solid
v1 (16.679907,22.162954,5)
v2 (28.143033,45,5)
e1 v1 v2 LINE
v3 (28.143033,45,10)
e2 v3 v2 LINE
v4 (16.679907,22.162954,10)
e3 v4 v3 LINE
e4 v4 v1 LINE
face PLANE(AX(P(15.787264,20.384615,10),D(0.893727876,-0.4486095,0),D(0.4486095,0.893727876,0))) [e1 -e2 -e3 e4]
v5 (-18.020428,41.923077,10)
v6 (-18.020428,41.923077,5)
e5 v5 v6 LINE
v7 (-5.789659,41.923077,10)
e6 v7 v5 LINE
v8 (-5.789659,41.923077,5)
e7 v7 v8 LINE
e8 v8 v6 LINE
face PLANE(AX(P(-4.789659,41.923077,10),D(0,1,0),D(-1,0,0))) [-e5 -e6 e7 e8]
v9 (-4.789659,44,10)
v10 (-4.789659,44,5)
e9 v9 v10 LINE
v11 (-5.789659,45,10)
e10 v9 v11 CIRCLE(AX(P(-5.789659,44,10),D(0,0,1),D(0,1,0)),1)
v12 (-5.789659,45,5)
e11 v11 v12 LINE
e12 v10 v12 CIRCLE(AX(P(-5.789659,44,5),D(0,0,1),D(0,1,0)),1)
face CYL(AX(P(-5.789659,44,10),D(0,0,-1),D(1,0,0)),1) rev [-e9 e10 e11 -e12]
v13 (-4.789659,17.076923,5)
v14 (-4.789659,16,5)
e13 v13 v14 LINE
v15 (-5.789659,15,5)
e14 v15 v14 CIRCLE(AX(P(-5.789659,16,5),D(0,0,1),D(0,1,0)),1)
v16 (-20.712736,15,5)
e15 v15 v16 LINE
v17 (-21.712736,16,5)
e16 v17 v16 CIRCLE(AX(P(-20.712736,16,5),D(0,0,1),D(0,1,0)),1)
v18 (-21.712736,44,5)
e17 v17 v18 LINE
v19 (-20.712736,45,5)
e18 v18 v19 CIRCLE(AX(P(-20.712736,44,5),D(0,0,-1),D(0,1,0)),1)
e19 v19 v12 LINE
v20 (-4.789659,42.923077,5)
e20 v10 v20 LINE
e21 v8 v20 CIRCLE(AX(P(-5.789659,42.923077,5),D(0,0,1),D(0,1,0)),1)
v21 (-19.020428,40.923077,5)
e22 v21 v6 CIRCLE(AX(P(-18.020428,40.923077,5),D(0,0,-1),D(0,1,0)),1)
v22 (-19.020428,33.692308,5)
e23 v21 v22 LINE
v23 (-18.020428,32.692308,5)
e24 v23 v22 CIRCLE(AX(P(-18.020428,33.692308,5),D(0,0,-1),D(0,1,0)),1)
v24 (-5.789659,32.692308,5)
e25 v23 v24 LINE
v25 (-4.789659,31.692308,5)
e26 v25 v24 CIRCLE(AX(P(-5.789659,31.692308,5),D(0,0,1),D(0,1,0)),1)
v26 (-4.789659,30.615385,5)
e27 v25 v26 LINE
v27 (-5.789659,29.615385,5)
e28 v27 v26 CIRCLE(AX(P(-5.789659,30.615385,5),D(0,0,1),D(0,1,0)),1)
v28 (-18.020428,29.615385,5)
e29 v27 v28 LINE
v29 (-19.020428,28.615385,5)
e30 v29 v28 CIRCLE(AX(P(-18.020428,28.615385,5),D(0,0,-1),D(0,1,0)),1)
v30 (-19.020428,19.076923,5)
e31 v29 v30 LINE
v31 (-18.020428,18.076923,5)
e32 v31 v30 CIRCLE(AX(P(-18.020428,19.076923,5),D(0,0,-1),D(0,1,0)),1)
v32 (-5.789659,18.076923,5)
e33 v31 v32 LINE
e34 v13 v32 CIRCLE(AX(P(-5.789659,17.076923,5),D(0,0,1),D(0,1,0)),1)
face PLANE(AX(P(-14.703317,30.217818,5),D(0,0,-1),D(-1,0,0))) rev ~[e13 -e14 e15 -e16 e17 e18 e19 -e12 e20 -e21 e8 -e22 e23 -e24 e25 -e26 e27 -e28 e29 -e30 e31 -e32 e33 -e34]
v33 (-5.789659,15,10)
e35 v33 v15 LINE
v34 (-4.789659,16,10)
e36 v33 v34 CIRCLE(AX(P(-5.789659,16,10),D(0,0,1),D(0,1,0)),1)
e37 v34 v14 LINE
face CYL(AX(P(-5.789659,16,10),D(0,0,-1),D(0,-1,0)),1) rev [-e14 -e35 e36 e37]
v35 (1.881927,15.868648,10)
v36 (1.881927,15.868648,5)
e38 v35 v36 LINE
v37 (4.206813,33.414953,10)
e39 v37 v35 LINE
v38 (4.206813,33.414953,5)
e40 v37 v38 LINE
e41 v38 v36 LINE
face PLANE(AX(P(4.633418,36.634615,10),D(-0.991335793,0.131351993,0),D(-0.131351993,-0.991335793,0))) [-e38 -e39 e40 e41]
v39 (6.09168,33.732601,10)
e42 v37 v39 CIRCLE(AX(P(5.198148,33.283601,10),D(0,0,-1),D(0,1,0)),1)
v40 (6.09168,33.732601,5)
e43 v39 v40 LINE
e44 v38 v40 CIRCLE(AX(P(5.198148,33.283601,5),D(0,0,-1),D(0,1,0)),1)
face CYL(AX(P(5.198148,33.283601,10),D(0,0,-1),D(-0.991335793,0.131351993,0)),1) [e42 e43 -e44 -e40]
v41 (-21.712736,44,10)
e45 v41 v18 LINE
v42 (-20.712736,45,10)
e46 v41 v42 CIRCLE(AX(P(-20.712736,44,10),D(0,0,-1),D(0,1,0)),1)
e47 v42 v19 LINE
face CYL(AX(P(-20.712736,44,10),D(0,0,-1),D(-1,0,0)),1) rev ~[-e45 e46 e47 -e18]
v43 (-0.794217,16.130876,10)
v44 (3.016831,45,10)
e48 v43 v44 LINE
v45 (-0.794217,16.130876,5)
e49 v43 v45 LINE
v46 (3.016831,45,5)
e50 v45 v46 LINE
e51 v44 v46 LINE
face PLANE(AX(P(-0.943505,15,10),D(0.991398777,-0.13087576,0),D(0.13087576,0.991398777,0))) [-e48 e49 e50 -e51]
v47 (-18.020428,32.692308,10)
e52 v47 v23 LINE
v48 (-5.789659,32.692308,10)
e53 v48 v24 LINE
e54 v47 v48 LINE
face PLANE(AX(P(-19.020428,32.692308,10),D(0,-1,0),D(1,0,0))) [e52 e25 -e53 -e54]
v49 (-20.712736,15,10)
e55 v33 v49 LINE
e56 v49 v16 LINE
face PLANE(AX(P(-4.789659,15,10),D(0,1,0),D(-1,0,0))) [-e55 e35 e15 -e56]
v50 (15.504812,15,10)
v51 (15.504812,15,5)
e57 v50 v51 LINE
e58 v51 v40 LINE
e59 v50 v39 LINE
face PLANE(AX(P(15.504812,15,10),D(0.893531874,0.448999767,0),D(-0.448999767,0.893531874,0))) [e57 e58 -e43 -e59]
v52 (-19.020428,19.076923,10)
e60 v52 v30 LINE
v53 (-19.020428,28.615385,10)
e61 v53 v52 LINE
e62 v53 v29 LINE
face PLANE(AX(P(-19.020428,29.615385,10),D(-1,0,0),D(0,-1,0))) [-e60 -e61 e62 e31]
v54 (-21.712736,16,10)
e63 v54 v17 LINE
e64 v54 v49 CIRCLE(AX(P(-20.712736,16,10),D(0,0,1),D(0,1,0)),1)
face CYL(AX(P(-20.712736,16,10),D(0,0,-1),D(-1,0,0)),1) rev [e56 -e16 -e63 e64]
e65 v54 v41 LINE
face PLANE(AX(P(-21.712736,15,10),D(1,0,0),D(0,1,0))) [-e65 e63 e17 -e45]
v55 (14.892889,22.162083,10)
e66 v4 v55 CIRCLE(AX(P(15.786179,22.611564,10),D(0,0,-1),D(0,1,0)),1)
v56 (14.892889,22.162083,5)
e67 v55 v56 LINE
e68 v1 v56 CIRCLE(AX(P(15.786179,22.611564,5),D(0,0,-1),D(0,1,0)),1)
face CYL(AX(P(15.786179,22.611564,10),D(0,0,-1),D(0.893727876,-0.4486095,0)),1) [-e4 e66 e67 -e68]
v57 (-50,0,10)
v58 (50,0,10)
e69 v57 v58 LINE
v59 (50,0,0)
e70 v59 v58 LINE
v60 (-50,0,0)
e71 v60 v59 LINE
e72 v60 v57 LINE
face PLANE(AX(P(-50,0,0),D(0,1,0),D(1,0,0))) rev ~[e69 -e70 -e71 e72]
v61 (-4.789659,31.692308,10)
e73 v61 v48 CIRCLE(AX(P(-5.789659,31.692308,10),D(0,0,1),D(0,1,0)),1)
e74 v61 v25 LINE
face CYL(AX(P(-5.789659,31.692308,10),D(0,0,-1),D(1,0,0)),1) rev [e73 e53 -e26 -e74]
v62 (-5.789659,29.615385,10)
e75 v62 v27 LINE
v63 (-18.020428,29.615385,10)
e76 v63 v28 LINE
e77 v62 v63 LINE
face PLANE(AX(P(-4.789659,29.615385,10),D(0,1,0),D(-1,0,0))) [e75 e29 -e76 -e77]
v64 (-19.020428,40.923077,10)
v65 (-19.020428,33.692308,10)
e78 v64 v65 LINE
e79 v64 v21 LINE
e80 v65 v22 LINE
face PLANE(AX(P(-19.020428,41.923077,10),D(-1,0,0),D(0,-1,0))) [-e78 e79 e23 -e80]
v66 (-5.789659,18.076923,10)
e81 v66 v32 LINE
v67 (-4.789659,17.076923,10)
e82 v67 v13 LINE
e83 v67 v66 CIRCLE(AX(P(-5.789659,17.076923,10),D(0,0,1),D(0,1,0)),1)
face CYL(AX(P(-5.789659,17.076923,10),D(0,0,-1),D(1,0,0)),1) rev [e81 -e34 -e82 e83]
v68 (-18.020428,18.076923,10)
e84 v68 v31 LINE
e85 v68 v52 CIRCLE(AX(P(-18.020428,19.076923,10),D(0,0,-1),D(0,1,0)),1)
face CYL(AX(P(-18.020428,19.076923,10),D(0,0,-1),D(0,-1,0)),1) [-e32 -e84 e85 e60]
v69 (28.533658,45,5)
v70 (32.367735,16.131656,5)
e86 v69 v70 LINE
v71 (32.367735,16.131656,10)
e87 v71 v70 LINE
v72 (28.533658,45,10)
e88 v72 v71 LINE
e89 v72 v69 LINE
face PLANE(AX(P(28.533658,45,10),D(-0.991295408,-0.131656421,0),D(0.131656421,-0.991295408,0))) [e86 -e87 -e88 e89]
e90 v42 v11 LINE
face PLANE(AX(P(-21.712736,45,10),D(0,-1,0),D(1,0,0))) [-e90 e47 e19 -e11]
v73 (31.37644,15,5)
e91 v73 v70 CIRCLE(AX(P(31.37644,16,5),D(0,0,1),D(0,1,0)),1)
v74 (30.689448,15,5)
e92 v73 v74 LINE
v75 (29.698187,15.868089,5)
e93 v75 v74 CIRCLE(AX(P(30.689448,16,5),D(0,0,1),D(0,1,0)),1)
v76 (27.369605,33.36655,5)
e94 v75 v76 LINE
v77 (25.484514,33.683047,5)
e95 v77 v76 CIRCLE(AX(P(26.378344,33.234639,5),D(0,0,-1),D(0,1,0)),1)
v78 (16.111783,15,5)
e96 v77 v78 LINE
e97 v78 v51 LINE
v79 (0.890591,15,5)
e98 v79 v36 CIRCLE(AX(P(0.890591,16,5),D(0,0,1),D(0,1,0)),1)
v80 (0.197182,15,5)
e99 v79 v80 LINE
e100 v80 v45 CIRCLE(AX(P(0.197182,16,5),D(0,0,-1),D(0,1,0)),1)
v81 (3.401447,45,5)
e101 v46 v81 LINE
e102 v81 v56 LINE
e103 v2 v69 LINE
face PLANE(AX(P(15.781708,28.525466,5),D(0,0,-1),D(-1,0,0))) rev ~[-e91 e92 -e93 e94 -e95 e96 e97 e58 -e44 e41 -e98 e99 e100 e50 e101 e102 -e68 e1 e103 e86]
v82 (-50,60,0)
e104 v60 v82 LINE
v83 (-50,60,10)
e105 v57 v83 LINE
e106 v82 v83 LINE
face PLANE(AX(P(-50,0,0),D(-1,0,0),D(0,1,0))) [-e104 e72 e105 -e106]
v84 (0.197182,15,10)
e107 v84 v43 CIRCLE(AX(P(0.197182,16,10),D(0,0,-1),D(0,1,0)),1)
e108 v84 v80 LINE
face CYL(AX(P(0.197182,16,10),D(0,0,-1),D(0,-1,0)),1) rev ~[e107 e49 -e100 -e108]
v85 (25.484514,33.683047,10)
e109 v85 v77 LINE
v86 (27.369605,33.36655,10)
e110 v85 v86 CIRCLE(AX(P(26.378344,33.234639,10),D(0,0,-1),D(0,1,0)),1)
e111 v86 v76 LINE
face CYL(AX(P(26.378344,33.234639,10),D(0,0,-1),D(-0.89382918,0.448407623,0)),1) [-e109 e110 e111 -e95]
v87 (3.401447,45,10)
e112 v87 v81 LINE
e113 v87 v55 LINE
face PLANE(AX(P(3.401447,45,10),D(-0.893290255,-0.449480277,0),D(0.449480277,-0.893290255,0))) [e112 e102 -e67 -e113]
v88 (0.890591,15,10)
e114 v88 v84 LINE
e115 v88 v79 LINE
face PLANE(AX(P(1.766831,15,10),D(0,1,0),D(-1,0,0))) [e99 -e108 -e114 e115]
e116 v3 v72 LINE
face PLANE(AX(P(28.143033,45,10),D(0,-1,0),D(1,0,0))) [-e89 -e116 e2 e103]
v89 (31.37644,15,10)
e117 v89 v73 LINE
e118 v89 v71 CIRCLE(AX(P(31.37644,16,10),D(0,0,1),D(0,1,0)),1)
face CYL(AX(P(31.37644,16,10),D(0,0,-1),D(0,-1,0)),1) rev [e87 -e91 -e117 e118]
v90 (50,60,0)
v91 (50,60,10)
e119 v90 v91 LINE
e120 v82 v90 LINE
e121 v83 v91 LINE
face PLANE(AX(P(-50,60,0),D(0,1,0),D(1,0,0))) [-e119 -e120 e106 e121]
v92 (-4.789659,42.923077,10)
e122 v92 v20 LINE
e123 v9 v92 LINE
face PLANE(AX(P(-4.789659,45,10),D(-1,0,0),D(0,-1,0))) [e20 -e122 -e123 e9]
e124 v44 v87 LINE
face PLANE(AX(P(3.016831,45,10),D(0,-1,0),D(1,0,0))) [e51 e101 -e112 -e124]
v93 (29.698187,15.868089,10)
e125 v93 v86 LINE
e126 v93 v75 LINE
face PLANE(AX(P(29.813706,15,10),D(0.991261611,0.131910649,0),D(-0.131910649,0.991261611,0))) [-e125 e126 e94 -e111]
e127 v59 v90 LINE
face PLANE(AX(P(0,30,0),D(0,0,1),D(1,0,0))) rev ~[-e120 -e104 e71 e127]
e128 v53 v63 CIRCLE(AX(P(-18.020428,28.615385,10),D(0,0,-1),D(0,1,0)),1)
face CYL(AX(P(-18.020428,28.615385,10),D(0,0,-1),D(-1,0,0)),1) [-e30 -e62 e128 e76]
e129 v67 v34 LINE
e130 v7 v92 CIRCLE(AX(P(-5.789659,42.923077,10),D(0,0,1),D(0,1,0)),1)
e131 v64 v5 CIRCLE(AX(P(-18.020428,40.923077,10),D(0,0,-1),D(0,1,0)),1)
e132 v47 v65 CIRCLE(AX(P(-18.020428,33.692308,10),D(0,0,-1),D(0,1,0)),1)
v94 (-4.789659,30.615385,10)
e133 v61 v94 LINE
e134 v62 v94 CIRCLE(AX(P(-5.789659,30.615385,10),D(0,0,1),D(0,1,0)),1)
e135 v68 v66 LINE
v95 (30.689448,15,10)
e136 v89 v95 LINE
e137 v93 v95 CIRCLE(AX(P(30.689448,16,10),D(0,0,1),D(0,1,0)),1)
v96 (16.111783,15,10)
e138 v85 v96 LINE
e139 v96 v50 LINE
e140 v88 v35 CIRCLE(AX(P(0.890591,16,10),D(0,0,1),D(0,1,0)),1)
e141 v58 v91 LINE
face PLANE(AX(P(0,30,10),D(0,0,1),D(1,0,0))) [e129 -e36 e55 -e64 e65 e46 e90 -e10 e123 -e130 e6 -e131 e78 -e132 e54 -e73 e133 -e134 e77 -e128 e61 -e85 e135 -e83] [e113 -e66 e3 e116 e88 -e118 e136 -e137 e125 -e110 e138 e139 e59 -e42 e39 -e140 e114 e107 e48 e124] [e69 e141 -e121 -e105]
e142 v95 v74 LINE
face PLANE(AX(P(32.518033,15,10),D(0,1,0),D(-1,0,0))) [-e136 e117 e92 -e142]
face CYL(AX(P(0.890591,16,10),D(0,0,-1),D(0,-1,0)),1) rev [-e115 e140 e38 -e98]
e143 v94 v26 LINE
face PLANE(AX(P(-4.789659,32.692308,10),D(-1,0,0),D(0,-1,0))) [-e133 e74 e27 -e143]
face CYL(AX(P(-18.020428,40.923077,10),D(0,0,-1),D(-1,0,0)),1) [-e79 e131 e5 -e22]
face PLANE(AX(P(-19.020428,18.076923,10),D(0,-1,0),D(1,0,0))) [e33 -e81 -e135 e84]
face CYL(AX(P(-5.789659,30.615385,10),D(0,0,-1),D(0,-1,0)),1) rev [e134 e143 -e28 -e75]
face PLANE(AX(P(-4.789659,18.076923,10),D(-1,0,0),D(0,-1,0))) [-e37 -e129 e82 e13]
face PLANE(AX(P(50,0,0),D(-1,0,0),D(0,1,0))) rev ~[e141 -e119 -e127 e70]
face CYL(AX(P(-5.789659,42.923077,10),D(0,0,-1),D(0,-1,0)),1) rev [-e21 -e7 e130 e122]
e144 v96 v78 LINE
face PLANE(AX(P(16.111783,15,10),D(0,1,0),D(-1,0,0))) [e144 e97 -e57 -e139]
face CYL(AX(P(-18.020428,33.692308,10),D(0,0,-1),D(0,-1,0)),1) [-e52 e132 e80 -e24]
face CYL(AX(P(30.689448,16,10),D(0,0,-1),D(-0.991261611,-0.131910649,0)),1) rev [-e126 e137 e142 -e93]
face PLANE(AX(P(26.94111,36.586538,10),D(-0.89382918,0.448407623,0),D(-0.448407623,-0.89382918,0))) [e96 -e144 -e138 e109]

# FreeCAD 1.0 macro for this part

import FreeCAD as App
import Part
import Sketcher

V = App.Vector
Q = App.Units.Quantity


def edges_at(feature, points):
    """Names of the edges that pass closest to the given points."""
    edges = feature.Shape.Edges
    near = lambda p: min(range(len(edges)), key=lambda i: edges[i].distToShape(Part.Vertex(*p))[0])
    return sorted({f"Edge{near(p) + 1}" for p in points})


def add_polygon(sketch, points):
    """Adds a closed chain of lines whose ends are joined by coincident constraints."""
    first, n = sketch.GeometryCount, len(points)
    for a, b in zip(points, points[1:] + points[:1]):
        sketch.addGeometry(Part.LineSegment(App.Vector(*a, 0), App.Vector(*b, 0)), False)
    for i in range(n):
        sketch.addConstraint(Sketcher.Constraint("Coincident", first + i, 2, first + (i + 1) % n, 1))

doc = App.newDocument("Part")
params = doc.addObject("Spreadsheet::Sheet", "Params")
for row, (alias, value) in enumerate([
    ("sketch1_width", "100 mm"),
    ("sketch1_height", "60 mm"),
    ("pad1_length", "10 mm"),
    ("sketch2_height", "30 mm"),
    ("pocket1_length", "5 mm"),
    ("fillet_radius", "1 mm"),
], start=1):
    params.set(f"A{row}", alias)
    params.set(f"B{row}", "=" + value)
    params.setAlias(f"B{row}", alias)

body = doc.addObject("PartDesign::Body", "Body")

sketch1 = body.newObject("Sketcher::SketchObject", "Sketch")
sketch1.AttachmentSupport = (doc.getObject("XY_Plane"), [""])
sketch1.MapMode = "FlatFace"
add_polygon(sketch1, [(-50, 60), (-50, 0), (50, 0), (50, 60)])
sketch1.addConstraint([
    Sketcher.Constraint("Vertical", 0),
    Sketcher.Constraint("Horizontal", 1),
    Sketcher.Constraint("Vertical", 2),
    Sketcher.Constraint("Horizontal", 3),
    Sketcher.Constraint("Symmetric", 0, 2, 1, 2, -1, 1),
    Sketcher.Constraint("DistanceX", 1, 1, 1, 2, 100.0),
    Sketcher.Constraint("DistanceY", 0, 2, 0, 1, 60.0),
])
sketch1.setExpression("Constraints[9]", "Params.sketch1_width")
sketch1.setExpression("Constraints[10]", "Params.sketch1_height")
pad1 = body.newObject("PartDesign::Pad", "Pad")
pad1.Profile = sketch1
pad1.setExpression("Length", "Params.pad1_length")

sketch2 = body.newObject("Sketcher::SketchObject", "Sketch001")
sketch2.AttachmentSupport = (doc.getObject("XY_Plane"), [""])
sketch2.MapMode = "FlatFace"
sketch2.AttachmentOffset = App.Placement(V(0, 0, 10), App.Rotation())
add_polygon(sketch2, [(-4.79, 45), (-21.71, 45), (-21.71, 15), (-4.79, 15), (-4.79, 18.08), (-19.02, 18.08), (-19.02, 29.62), (-4.79, 29.62), (-4.79, 32.69), (-19.02, 32.69), (-19.02, 41.92), (-4.79, 41.92)])
add_polygon(sketch2, [(3.02, 45), (-0.94, 15), (1.77, 15), (4.63, 36.63), (15.5, 15), (16.11, 15), (26.94, 36.59), (29.81, 15), (32.52, 15), (28.53, 45), (28.14, 45), (15.79, 20.38), (3.4, 45)])
sketch2.addConstraint([
    Sketcher.Constraint("Horizontal", 0),
    Sketcher.Constraint("Vertical", 1),
    Sketcher.Constraint("Horizontal", 2),
    Sketcher.Constraint("Vertical", 3),
    Sketcher.Constraint("Horizontal", 4),
    Sketcher.Constraint("Vertical", 5),
    Sketcher.Constraint("Horizontal", 6),
    Sketcher.Constraint("Vertical", 7),
    Sketcher.Constraint("Horizontal", 8),
    Sketcher.Constraint("Vertical", 9),
    Sketcher.Constraint("Horizontal", 10),
    Sketcher.Constraint("Vertical", 11),
    Sketcher.Constraint("Horizontal", 13),
    Sketcher.Constraint("Horizontal", 16),
    Sketcher.Constraint("Horizontal", 19),
    Sketcher.Constraint("Horizontal", 21),
    Sketcher.Constraint("Horizontal", 24),
    Sketcher.Constraint("Horizontal", 2, 2, 12, 2),
    Sketcher.Constraint("Horizontal", 13, 2, 15, 2),
    Sketcher.Constraint("Horizontal", 16, 2, 18, 2),
    Sketcher.Constraint("Horizontal", 11, 2, 20, 2),
    Sketcher.Constraint("Horizontal", 21, 2, 23, 2),
    Sketcher.Constraint("Vertical", 3, 2, 6, 2),
    Sketcher.Constraint("Vertical", 5, 2, 8, 2),
    Sketcher.Constraint("Vertical", 7, 2, 10, 2),
    Sketcher.Constraint("Equal", 3, 7),
    Sketcher.Constraint("Equal", 7, 11),
    Sketcher.Constraint("DistanceY", 1, 2, 1, 1, 30.0),
    Sketcher.Constraint("DistanceY", -1, 1, 0, 2, 45.0),
    Sketcher.Constraint("Angle", 18, Q("-82.419985 deg")),
    Sketcher.Constraint("DistanceX", 21, 2, 19, 2, 4.375),
    Sketcher.Constraint("Distance", 14, 21.8237),
    Sketcher.Constraint("DistanceX", 4, 2, 4, 1, 14.230769),
    Sketcher.Constraint("DistanceX", 16, 1, 16, 2, 0.606971),
    Sketcher.Constraint("DistanceY", 5, 1, 5, 2, 11.538462),
    Sketcher.Constraint("DistanceY", 9, 1, 9, 2, 9.230769),
    Sketcher.Constraint("DistanceX", 15, 2, 17, 2, 11.436298),
    Sketcher.Constraint("DistanceX", 13, 2, 19, 2, 30.751202),
    Sketcher.Constraint("Distance", 15, 24.212472),
    Sketcher.Constraint("Distance", 17, 24.150631),
    Sketcher.Constraint("Distance", 20, 30.263431),
    Sketcher.Constraint("Distance", 22, 27.542371),
    Sketcher.Constraint("DistanceX", 0, 2, 0, 1, 16.923077),
    Sketcher.Constraint("DistanceX", 13, 1, 13, 2, 2.710337),
    Sketcher.Constraint("DistanceX", 19, 1, 19, 2, 2.704327),
    Sketcher.Constraint("DistanceX", 24, 2, 24, 1, 0.384615),
    Sketcher.Constraint("DistanceX", 2, 2, -1, 1, 4.789659),
    Sketcher.Constraint("DistanceX", -1, 1, 13, 2, 1.766831),
    Sketcher.Constraint("DistanceX", -1, 1, 24, 2, 3.016831),
    Sketcher.Constraint("DistanceX", 15, 2, 22, 2, 0.282452),
])
sketch2.setExpression("Constraints[52]", "Params.sketch2_height")
pocket1 = body.newObject("PartDesign::Pocket", "Pocket")
pocket1.Profile = sketch2
pocket1.setExpression("Length", "Params.pocket1_length")
doc.recompute()

fillet = body.newObject("PartDesign::Fillet", "Fillet")
fillet.Base = (pocket1, edges_at(pocket1, [
    (-4.79, 15, 7.5),
    (-21.713, 15, 7.5),
    (-21.713, 45, 7.5),
    (-4.79, 45, 7.5),
    (-4.79, 41.923, 7.5),
    (-19.02, 41.923, 7.5),
    (-19.02, 32.692, 7.5),
    (-4.79, 32.692, 7.5),
    (-4.79, 29.615, 7.5),
    (-19.02, 29.615, 7.5),
    (-19.02, 18.077, 7.5),
    (-4.79, 18.077, 7.5),
    (15.787, 20.385, 7.5),
    (32.518, 15, 7.5),
    (29.814, 15, 7.5),
    (26.941, 36.587, 7.5),
    (4.633, 36.635, 7.5),
    (1.767, 15, 7.5),
    (-0.944, 15, 7.5),
]))
fillet.setExpression("Radius", "Params.fillet_radius")

doc.recompute()
